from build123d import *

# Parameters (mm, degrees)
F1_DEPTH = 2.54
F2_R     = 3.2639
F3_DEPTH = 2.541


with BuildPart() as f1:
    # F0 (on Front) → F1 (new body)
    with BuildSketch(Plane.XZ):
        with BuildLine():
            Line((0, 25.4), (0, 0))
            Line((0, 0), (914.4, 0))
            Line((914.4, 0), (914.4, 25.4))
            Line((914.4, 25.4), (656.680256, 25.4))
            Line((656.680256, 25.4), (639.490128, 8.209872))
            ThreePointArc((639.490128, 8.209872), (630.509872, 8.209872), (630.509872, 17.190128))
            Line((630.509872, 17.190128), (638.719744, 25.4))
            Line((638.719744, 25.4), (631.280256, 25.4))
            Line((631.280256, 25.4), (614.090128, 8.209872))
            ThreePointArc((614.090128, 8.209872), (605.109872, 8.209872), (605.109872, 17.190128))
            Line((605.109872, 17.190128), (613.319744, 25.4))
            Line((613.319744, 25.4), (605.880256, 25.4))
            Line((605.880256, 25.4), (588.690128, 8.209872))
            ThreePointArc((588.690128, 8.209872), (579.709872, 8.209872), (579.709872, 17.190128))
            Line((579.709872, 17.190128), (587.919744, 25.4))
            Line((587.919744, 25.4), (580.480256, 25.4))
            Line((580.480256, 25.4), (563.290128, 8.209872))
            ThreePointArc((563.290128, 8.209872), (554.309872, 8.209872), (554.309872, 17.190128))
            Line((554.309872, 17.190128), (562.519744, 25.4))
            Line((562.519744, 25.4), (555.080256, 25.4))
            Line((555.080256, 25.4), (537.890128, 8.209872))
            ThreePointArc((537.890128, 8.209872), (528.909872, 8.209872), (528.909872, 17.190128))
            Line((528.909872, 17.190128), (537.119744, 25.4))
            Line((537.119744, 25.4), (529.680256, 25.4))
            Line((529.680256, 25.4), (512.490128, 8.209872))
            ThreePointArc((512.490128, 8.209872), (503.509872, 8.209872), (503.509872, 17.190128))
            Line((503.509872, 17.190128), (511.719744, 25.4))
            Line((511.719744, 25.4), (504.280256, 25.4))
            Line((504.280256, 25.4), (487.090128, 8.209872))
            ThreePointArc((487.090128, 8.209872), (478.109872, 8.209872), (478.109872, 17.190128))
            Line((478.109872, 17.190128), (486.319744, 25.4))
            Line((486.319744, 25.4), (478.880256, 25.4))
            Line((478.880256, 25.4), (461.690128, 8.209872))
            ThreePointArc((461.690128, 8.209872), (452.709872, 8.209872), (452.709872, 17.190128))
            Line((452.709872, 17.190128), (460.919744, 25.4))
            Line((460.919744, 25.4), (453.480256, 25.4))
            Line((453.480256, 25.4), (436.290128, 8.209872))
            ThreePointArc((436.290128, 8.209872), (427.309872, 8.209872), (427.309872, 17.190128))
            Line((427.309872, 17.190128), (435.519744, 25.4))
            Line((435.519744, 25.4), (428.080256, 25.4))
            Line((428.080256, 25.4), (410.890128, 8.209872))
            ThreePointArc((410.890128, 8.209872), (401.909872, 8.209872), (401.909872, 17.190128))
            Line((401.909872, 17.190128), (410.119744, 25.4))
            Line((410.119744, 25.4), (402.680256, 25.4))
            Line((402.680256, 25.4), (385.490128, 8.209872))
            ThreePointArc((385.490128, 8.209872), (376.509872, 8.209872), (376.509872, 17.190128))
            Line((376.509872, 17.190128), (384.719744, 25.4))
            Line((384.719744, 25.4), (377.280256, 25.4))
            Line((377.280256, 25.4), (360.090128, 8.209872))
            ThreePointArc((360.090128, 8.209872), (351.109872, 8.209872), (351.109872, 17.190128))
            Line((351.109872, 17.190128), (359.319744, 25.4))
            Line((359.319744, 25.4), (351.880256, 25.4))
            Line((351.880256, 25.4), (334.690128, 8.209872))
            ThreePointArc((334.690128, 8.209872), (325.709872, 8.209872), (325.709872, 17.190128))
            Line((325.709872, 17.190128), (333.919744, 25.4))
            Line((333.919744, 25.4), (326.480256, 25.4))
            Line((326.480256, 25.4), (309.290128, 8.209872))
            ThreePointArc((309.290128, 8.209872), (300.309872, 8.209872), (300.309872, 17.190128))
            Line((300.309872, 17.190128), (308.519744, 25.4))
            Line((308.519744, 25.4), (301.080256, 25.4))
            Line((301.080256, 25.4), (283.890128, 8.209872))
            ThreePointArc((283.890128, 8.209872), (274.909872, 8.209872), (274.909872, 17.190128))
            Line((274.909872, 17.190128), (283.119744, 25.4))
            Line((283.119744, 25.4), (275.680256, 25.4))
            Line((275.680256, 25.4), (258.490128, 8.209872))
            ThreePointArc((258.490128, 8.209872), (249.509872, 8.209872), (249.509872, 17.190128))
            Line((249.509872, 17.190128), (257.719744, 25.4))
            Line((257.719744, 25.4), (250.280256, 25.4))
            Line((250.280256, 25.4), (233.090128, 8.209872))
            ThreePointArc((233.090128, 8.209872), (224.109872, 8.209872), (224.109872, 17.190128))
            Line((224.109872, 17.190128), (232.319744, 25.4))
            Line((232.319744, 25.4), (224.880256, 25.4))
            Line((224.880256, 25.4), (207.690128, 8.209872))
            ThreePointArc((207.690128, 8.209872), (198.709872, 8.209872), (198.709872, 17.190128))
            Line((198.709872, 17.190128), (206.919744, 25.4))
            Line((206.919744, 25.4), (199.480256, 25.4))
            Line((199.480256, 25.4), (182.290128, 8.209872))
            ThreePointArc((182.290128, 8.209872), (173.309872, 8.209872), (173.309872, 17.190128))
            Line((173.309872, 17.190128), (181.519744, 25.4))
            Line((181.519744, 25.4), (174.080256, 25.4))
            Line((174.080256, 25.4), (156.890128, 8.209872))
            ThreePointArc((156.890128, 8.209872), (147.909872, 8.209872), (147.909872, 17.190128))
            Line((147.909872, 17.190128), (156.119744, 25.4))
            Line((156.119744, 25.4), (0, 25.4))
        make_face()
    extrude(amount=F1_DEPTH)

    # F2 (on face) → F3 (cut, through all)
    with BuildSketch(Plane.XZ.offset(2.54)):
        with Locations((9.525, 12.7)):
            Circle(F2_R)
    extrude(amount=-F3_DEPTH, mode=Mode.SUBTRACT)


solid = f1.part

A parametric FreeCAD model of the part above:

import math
import FreeCAD as App
import Part
import Sketcher
Q = App.Units.Quantity

doc = App.newDocument("Part")
body = doc.addObject("PartDesign::Body", "Body")

# Sketch on XZ plane
sketch1 = body.newObject("Sketcher::SketchObject", "Sketch")
sketch1.AttachmentSupport = (doc.getObject("XZ_Plane"), [""])
sketch1.MapMode = "FlatFace"
sketch1.addGeometry([
    Part.LineSegment(App.Vector(0, 25.4, 0), App.Vector(0, 0, 0)),  # 0
    Part.LineSegment(App.Vector(0, 0, 0), App.Vector(914.4, 0, 0)),  # 1
    Part.LineSegment(App.Vector(914.4, 0, 0), App.Vector(914.4, 25.4, 0)),  # 2
    Part.LineSegment(App.Vector(914.4, 25.4, 0), App.Vector(656.680256, 25.4, 0)),  # 3
    Part.LineSegment(App.Vector(656.680256, 25.4, 0), App.Vector(639.490128, 8.209872, 0)),  # 4
    Part.ArcOfCircle(Part.Circle(App.Vector(635, 12.7, 0), App.Vector(0, 0, 1), 6.35), math.radians(135), math.radians(315)),  # 5
    Part.LineSegment(App.Vector(630.509872, 17.190128, 0), App.Vector(638.719744, 25.4, 0)),  # 6
    Part.LineSegment(App.Vector(638.719744, 25.4, 0), App.Vector(631.280256, 25.4, 0)),  # 7
    Part.LineSegment(App.Vector(631.280256, 25.4, 0), App.Vector(614.090128, 8.209872, 0)),  # 8
    Part.ArcOfCircle(Part.Circle(App.Vector(609.6, 12.7, 0), App.Vector(0, 0, 1), 6.35), math.radians(135), math.radians(315)),  # 9
    Part.LineSegment(App.Vector(605.109872, 17.190128, 0), App.Vector(613.319744, 25.4, 0)),  # 10
    Part.LineSegment(App.Vector(613.319744, 25.4, 0), App.Vector(605.880256, 25.4, 0)),  # 11
    Part.LineSegment(App.Vector(605.880256, 25.4, 0), App.Vector(588.690128, 8.209872, 0)),  # 12
    Part.ArcOfCircle(Part.Circle(App.Vector(584.2, 12.7, 0), App.Vector(0, 0, 1), 6.35), math.radians(135), math.radians(315)),  # 13
    Part.LineSegment(App.Vector(579.709872, 17.190128, 0), App.Vector(587.919744, 25.4, 0)),  # 14
    Part.LineSegment(App.Vector(587.919744, 25.4, 0), App.Vector(580.480256, 25.4, 0)),  # 15
    Part.LineSegment(App.Vector(580.480256, 25.4, 0), App.Vector(563.290128, 8.209872, 0)),  # 16
    Part.ArcOfCircle(Part.Circle(App.Vector(558.8, 12.7, 0), App.Vector(0, 0, 1), 6.35), math.radians(135), math.radians(315)),  # 17
    Part.LineSegment(App.Vector(554.309872, 17.190128, 0), App.Vector(562.519744, 25.4, 0)),  # 18
    Part.LineSegment(App.Vector(562.519744, 25.4, 0), App.Vector(555.080256, 25.4, 0)),  # 19
    Part.LineSegment(App.Vector(555.080256, 25.4, 0), App.Vector(537.890128, 8.209872, 0)),  # 20
    Part.ArcOfCircle(Part.Circle(App.Vector(533.4, 12.7, 0), App.Vector(0, 0, 1), 6.35), math.radians(135), math.radians(315)),  # 21
    Part.LineSegment(App.Vector(528.909872, 17.190128, 0), App.Vector(537.119744, 25.4, 0)),  # 22
    Part.LineSegment(App.Vector(537.119744, 25.4, 0), App.Vector(529.680256, 25.4, 0)),  # 23
    Part.LineSegment(App.Vector(529.680256, 25.4, 0), App.Vector(512.490128, 8.209872, 0)),  # 24
    Part.ArcOfCircle(Part.Circle(App.Vector(508, 12.7, 0), App.Vector(0, 0, 1), 6.35), math.radians(135), math.radians(315)),  # 25
    Part.LineSegment(App.Vector(503.509872, 17.190128, 0), App.Vector(511.719744, 25.4, 0)),  # 26
    Part.LineSegment(App.Vector(511.719744, 25.4, 0), App.Vector(504.280256, 25.4, 0)),  # 27
    Part.LineSegment(App.Vector(504.280256, 25.4, 0), App.Vector(487.090128, 8.209872, 0)),  # 28
    Part.ArcOfCircle(Part.Circle(App.Vector(482.6, 12.7, 0), App.Vector(0, 0, 1), 6.35), math.radians(135), math.radians(315)),  # 29
    Part.LineSegment(App.Vector(478.109872, 17.190128, 0), App.Vector(486.319744, 25.4, 0)),  # 30
    Part.LineSegment(App.Vector(486.319744, 25.4, 0), App.Vector(478.880256, 25.4, 0)),  # 31
    Part.LineSegment(App.Vector(478.880256, 25.4, 0), App.Vector(461.690128, 8.209872, 0)),  # 32
    Part.ArcOfCircle(Part.Circle(App.Vector(457.2, 12.7, 0), App.Vector(0, 0, 1), 6.35), math.radians(135), math.radians(315)),  # 33
    Part.LineSegment(App.Vector(452.709872, 17.190128, 0), App.Vector(460.919744, 25.4, 0)),  # 34
    Part.LineSegment(App.Vector(460.919744, 25.4, 0), App.Vector(453.480256, 25.4, 0)),  # 35
    Part.LineSegment(App.Vector(453.480256, 25.4, 0), App.Vector(436.290128, 8.209872, 0)),  # 36
    Part.ArcOfCircle(Part.Circle(App.Vector(431.8, 12.7, 0), App.Vector(0, 0, 1), 6.35), math.radians(135), math.radians(315)),  # 37
    Part.LineSegment(App.Vector(427.309872, 17.190128, 0), App.Vector(435.519744, 25.4, 0)),  # 38
    Part.LineSegment(App.Vector(435.519744, 25.4, 0), App.Vector(428.080256, 25.4, 0)),  # 39
    Part.LineSegment(App.Vector(428.080256, 25.4, 0), App.Vector(410.890128, 8.209872, 0)),  # 40
    Part.ArcOfCircle(Part.Circle(App.Vector(406.4, 12.7, 0), App.Vector(0, 0, 1), 6.35), math.radians(135), math.radians(315)),  # 41
    Part.LineSegment(App.Vector(401.909872, 17.190128, 0), App.Vector(410.119744, 25.4, 0)),  # 42
    Part.LineSegment(App.Vector(410.119744, 25.4, 0), App.Vector(402.680256, 25.4, 0)),  # 43
    Part.LineSegment(App.Vector(402.680256, 25.4, 0), App.Vector(385.490128, 8.209872, 0)),  # 44
    Part.ArcOfCircle(Part.Circle(App.Vector(381, 12.7, 0), App.Vector(0, 0, 1), 6.35), math.radians(135), math.radians(315)),  # 45
    Part.LineSegment(App.Vector(376.509872, 17.190128, 0), App.Vector(384.719744, 25.4, 0)),  # 46
    Part.LineSegment(App.Vector(384.719744, 25.4, 0), App.Vector(377.280256, 25.4, 0)),  # 47
    Part.LineSegment(App.Vector(377.280256, 25.4, 0), App.Vector(360.090128, 8.209872, 0)),  # 48
    Part.ArcOfCircle(Part.Circle(App.Vector(355.6, 12.7, 0), App.Vector(0, 0, 1), 6.35), math.radians(135), math.radians(315)),  # 49
    Part.LineSegment(App.Vector(351.109872, 17.190128, 0), App.Vector(359.319744, 25.4, 0)),  # 50
    Part.LineSegment(App.Vector(359.319744, 25.4, 0), App.Vector(351.880256, 25.4, 0)),  # 51
    Part.LineSegment(App.Vector(351.880256, 25.4, 0), App.Vector(334.690128, 8.209872, 0)),  # 52
    Part.ArcOfCircle(Part.Circle(App.Vector(330.2, 12.7, 0), App.Vector(0, 0, 1), 6.35), math.radians(135), math.radians(315)),  # 53
    Part.LineSegment(App.Vector(325.709872, 17.190128, 0), App.Vector(333.919744, 25.4, 0)),  # 54
    Part.LineSegment(App.Vector(333.919744, 25.4, 0), App.Vector(326.480256, 25.4, 0)),  # 55
    Part.LineSegment(App.Vector(326.480256, 25.4, 0), App.Vector(309.290128, 8.209872, 0)),  # 56
    Part.ArcOfCircle(Part.Circle(App.Vector(304.8, 12.7, 0), App.Vector(0, 0, 1), 6.35), math.radians(135), math.radians(315)),  # 57
    Part.LineSegment(App.Vector(300.309872, 17.190128, 0), App.Vector(308.519744, 25.4, 0)),  # 58
    Part.LineSegment(App.Vector(308.519744, 25.4, 0), App.Vector(301.080256, 25.4, 0)),  # 59
    Part.LineSegment(App.Vector(301.080256, 25.4, 0), App.Vector(283.890128, 8.209872, 0)),  # 60
    Part.ArcOfCircle(Part.Circle(App.Vector(279.4, 12.7, 0), App.Vector(0, 0, 1), 6.35), math.radians(135), math.radians(315)),  # 61
    Part.LineSegment(App.Vector(274.909872, 17.190128, 0), App.Vector(283.119744, 25.4, 0)),  # 62
    Part.LineSegment(App.Vector(283.119744, 25.4, 0), App.Vector(275.680256, 25.4, 0)),  # 63
    Part.LineSegment(App.Vector(275.680256, 25.4, 0), App.Vector(258.490128, 8.209872, 0)),  # 64
    Part.ArcOfCircle(Part.Circle(App.Vector(254, 12.7, 0), App.Vector(0, 0, 1), 6.35), math.radians(135), math.radians(315)),  # 65
    Part.LineSegment(App.Vector(249.509872, 17.190128, 0), App.Vector(257.719744, 25.4, 0)),  # 66
    Part.LineSegment(App.Vector(257.719744, 25.4, 0), App.Vector(250.280256, 25.4, 0)),  # 67
    Part.LineSegment(App.Vector(250.280256, 25.4, 0), App.Vector(233.090128, 8.209872, 0)),  # 68
    Part.ArcOfCircle(Part.Circle(App.Vector(228.6, 12.7, 0), App.Vector(0, 0, 1), 6.35), math.radians(135), math.radians(315)),  # 69
    Part.LineSegment(App.Vector(224.109872, 17.190128, 0), App.Vector(232.319744, 25.4, 0)),  # 70
    Part.LineSegment(App.Vector(232.319744, 25.4, 0), App.Vector(224.880256, 25.4, 0)),  # 71
    Part.LineSegment(App.Vector(224.880256, 25.4, 0), App.Vector(207.690128, 8.209872, 0)),  # 72
    Part.ArcOfCircle(Part.Circle(App.Vector(203.2, 12.7, 0), App.Vector(0, 0, 1), 6.35), math.radians(135), math.radians(315)),  # 73
    Part.LineSegment(App.Vector(198.709872, 17.190128, 0), App.Vector(206.919744, 25.4, 0)),  # 74
    Part.LineSegment(App.Vector(206.919744, 25.4, 0), App.Vector(199.480256, 25.4, 0)),  # 75
    Part.LineSegment(App.Vector(199.480256, 25.4, 0), App.Vector(182.290128, 8.209872, 0)),  # 76
    Part.ArcOfCircle(Part.Circle(App.Vector(177.8, 12.7, 0), App.Vector(0, 0, 1), 6.35), math.radians(135), math.radians(315)),  # 77
    Part.LineSegment(App.Vector(173.309872, 17.190128, 0), App.Vector(181.519744, 25.4, 0)),  # 78
    Part.LineSegment(App.Vector(181.519744, 25.4, 0), App.Vector(174.080256, 25.4, 0)),  # 79
    Part.LineSegment(App.Vector(174.080256, 25.4, 0), App.Vector(156.890128, 8.209872, 0)),  # 80
    Part.ArcOfCircle(Part.Circle(App.Vector(152.4, 12.7, 0), App.Vector(0, 0, 1), 6.35), math.radians(135), math.radians(315)),  # 81
    Part.LineSegment(App.Vector(147.909872, 17.190128, 0), App.Vector(156.119744, 25.4, 0)),  # 82
    Part.LineSegment(App.Vector(156.119744, 25.4, 0), App.Vector(0, 25.4, 0)),  # 83
], False)
sketch1.addConstraint([
    Sketcher.Constraint("Coincident", 0, 2, 1, 1),
    Sketcher.Constraint("Coincident", 1, 2, 2, 1),
    Sketcher.Constraint("Coincident", 2, 2, 3, 1),
    Sketcher.Constraint("Coincident", 3, 2, 4, 1),
    Sketcher.Constraint("Tangent", 4, 2, 5, 2),
    Sketcher.Constraint("Tangent", 5, 1, 6, 1),
    Sketcher.Constraint("Coincident", 6, 2, 7, 1),
    Sketcher.Constraint("Coincident", 7, 2, 8, 1),
    Sketcher.Constraint("Tangent", 8, 2, 9, 2),
    Sketcher.Constraint("Tangent", 9, 1, 10, 1),
    Sketcher.Constraint("Coincident", 10, 2, 11, 1),
    Sketcher.Constraint("Coincident", 11, 2, 12, 1),
    Sketcher.Constraint("Tangent", 12, 2, 13, 2),
    Sketcher.Constraint("Tangent", 13, 1, 14, 1),
    Sketcher.Constraint("Coincident", 14, 2, 15, 1),
    Sketcher.Constraint("Coincident", 15, 2, 16, 1),
    Sketcher.Constraint("Tangent", 16, 2, 17, 2),
    Sketcher.Constraint("Tangent", 17, 1, 18, 1),
    Sketcher.Constraint("Coincident", 18, 2, 19, 1),
    Sketcher.Constraint("Coincident", 19, 2, 20, 1),
    Sketcher.Constraint("Tangent", 20, 2, 21, 2),
    Sketcher.Constraint("Tangent", 21, 1, 22, 1),
    Sketcher.Constraint("Coincident", 22, 2, 23, 1),
    Sketcher.Constraint("Coincident", 23, 2, 24, 1),
    Sketcher.Constraint("Tangent", 24, 2, 25, 2),
    Sketcher.Constraint("Tangent", 25, 1, 26, 1),
    Sketcher.Constraint("Coincident", 26, 2, 27, 1),
    Sketcher.Constraint("Coincident", 27, 2, 28, 1),
    Sketcher.Constraint("Tangent", 28, 2, 29, 2),
    Sketcher.Constraint("Tangent", 29, 1, 30, 1),
    Sketcher.Constraint("Coincident", 30, 2, 31, 1),
    Sketcher.Constraint("Coincident", 31, 2, 32, 1),
    Sketcher.Constraint("Tangent", 32, 2, 33, 2),
    Sketcher.Constraint("Tangent", 33, 1, 34, 1),
    Sketcher.Constraint("Coincident", 34, 2, 35, 1),
    Sketcher.Constraint("Coincident", 35, 2, 36, 1),
    Sketcher.Constraint("Tangent", 36, 2, 37, 2),
    Sketcher.Constraint("Tangent", 37, 1, 38, 1),
    Sketcher.Constraint("Coincident", 38, 2, 39, 1),
    Sketcher.Constraint("Coincident", 39, 2, 40, 1),
    Sketcher.Constraint("Tangent", 40, 2, 41, 2),
    Sketcher.Constraint("Tangent", 41, 1, 42, 1),
    Sketcher.Constraint("Coincident", 42, 2, 43, 1),
    Sketcher.Constraint("Coincident", 43, 2, 44, 1),
    Sketcher.Constraint("Tangent", 44, 2, 45, 2),
    Sketcher.Constraint("Tangent", 45, 1, 46, 1),
    Sketcher.Constraint("Coincident", 46, 2, 47, 1),
    Sketcher.Constraint("Coincident", 47, 2, 48, 1),
    Sketcher.Constraint("Tangent", 48, 2, 49, 2),
    Sketcher.Constraint("Tangent", 49, 1, 50, 1),
    Sketcher.Constraint("Coincident", 50, 2, 51, 1),
    Sketcher.Constraint("Coincident", 51, 2, 52, 1),
    Sketcher.Constraint("Tangent", 52, 2, 53, 2),
    Sketcher.Constraint("Tangent", 53, 1, 54, 1),
    Sketcher.Constraint("Coincident", 54, 2, 55, 1),
    Sketcher.Constraint("Coincident", 55, 2, 56, 1),
    Sketcher.Constraint("Tangent", 56, 2, 57, 2),
    Sketcher.Constraint("Tangent", 57, 1, 58, 1),
    Sketcher.Constraint("Coincident", 58, 2, 59, 1),
    Sketcher.Constraint("Coincident", 59, 2, 60, 1),
    Sketcher.Constraint("Tangent", 60, 2, 61, 2),
    Sketcher.Constraint("Tangent", 61, 1, 62, 1),
    Sketcher.Constraint("Coincident", 62, 2, 63, 1),
    Sketcher.Constraint("Coincident", 63, 2, 64, 1),
    Sketcher.Constraint("Tangent", 64, 2, 65, 2),
    Sketcher.Constraint("Tangent", 65, 1, 66, 1),
    Sketcher.Constraint("Coincident", 66, 2, 67, 1),
    Sketcher.Constraint("Coincident", 67, 2, 68, 1),
    Sketcher.Constraint("Tangent", 68, 2, 69, 2),
    Sketcher.Constraint("Tangent", 69, 1, 70, 1),
    Sketcher.Constraint("Coincident", 70, 2, 71, 1),
    Sketcher.Constraint("Coincident", 71, 2, 72, 1),
    Sketcher.Constraint("Tangent", 72, 2, 73, 2),
    Sketcher.Constraint("Tangent", 73, 1, 74, 1),
    Sketcher.Constraint("Coincident", 74, 2, 75, 1),
    Sketcher.Constraint("Coincident", 75, 2, 76, 1),
    Sketcher.Constraint("Tangent", 76, 2, 77, 2),
    Sketcher.Constraint("Tangent", 77, 1, 78, 1),
    Sketcher.Constraint("Coincident", 78, 2, 79, 1),
    Sketcher.Constraint("Coincident", 79, 2, 80, 1),
    Sketcher.Constraint("Tangent", 80, 2, 81, 2),
    Sketcher.Constraint("Tangent", 81, 1, 82, 1),
    Sketcher.Constraint("Coincident", 82, 2, 83, 1),
    Sketcher.Constraint("Coincident", 83, 2, 0, 1),
    Sketcher.Constraint("Vertical", 0),
    Sketcher.Constraint("Horizontal", 1),
    Sketcher.Constraint("Vertical", 2),
    Sketcher.Constraint("Horizontal", 3),
    Sketcher.Constraint("Horizontal", 7),
    Sketcher.Constraint("Horizontal", 11),
    Sketcher.Constraint("Horizontal", 15),
    Sketcher.Constraint("Horizontal", 19),
    Sketcher.Constraint("Horizontal", 23),
    Sketcher.Constraint("Horizontal", 27),
    Sketcher.Constraint("Horizontal", 31),
    Sketcher.Constraint("Horizontal", 35),
    Sketcher.Constraint("Horizontal", 39),
    Sketcher.Constraint("Horizontal", 43),
    Sketcher.Constraint("Horizontal", 47),
    Sketcher.Constraint("Horizontal", 51),
    Sketcher.Constraint("Horizontal", 55),
    Sketcher.Constraint("Horizontal", 59),
    Sketcher.Constraint("Horizontal", 63),
    Sketcher.Constraint("Horizontal", 67),
    Sketcher.Constraint("Horizontal", 71),
    Sketcher.Constraint("Horizontal", 75),
    Sketcher.Constraint("Horizontal", 79),
    Sketcher.Constraint("Horizontal", 83),
    Sketcher.Constraint("Coincident", 0, 2, -1, 1),
    Sketcher.Constraint("Equal", 5, 9),
    Sketcher.Constraint("Equal", 9, 13),
    Sketcher.Constraint("Equal", 13, 17),
    Sketcher.Constraint("Equal", 17, 21),
    Sketcher.Constraint("Equal", 21, 25),
    Sketcher.Constraint("Equal", 25, 29),
    Sketcher.Constraint("Equal", 29, 33),
    Sketcher.Constraint("Equal", 33, 37),
    Sketcher.Constraint("Equal", 37, 41),
    Sketcher.Constraint("Equal", 41, 45),
    Sketcher.Constraint("Equal", 45, 49),
    Sketcher.Constraint("Equal", 49, 53),
    Sketcher.Constraint("Equal", 53, 57),
    Sketcher.Constraint("Equal", 57, 61),
    Sketcher.Constraint("Equal", 61, 65),
    Sketcher.Constraint("Equal", 65, 69),
    Sketcher.Constraint("Equal", 69, 73),
    Sketcher.Constraint("Equal", 73, 77),
    Sketcher.Constraint("Equal", 77, 81),
    Sketcher.Constraint("Parallel", 4, 6),
    Sketcher.Constraint("Parallel", 6, 8),
    Sketcher.Constraint("Parallel", 8, 10),
    Sketcher.Constraint("Parallel", 10, 12),
    Sketcher.Constraint("Parallel", 12, 14),
    Sketcher.Constraint("Parallel", 14, 16),
    Sketcher.Constraint("Parallel", 16, 18),
    Sketcher.Constraint("Parallel", 18, 20),
    Sketcher.Constraint("Parallel", 20, 22),
    Sketcher.Constraint("Parallel", 22, 24),
    Sketcher.Constraint("Parallel", 24, 26),
    Sketcher.Constraint("Parallel", 26, 28),
    Sketcher.Constraint("Parallel", 28, 30),
    Sketcher.Constraint("Parallel", 30, 32),
    Sketcher.Constraint("Parallel", 32, 34),
    Sketcher.Constraint("Parallel", 34, 36),
    Sketcher.Constraint("Parallel", 36, 38),
    Sketcher.Constraint("Parallel", 38, 40),
    Sketcher.Constraint("Parallel", 40, 42),
    Sketcher.Constraint("Parallel", 42, 44),
    Sketcher.Constraint("Parallel", 44, 46),
    Sketcher.Constraint("Parallel", 46, 48),
    Sketcher.Constraint("Parallel", 48, 50),
    Sketcher.Constraint("Parallel", 50, 52),
    Sketcher.Constraint("Parallel", 52, 54),
    Sketcher.Constraint("Parallel", 54, 56),
    Sketcher.Constraint("Parallel", 56, 58),
    Sketcher.Constraint("Parallel", 58, 60),
    Sketcher.Constraint("Parallel", 60, 62),
    Sketcher.Constraint("Parallel", 62, 64),
    Sketcher.Constraint("Parallel", 64, 66),
    Sketcher.Constraint("Parallel", 66, 68),
    Sketcher.Constraint("Parallel", 68, 70),
    Sketcher.Constraint("Parallel", 70, 72),
    Sketcher.Constraint("Parallel", 72, 74),
    Sketcher.Constraint("Parallel", 74, 76),
    Sketcher.Constraint("Parallel", 76, 78),
    Sketcher.Constraint("Parallel", 78, 80),
    Sketcher.Constraint("Parallel", 80, 82),
    Sketcher.Constraint("Horizontal", 5, 3, 9, 3),
    Sketcher.Constraint("Horizontal", 9, 3, 13, 3),
    Sketcher.Constraint("Horizontal", 13, 3, 17, 3),
    Sketcher.Constraint("Horizontal", 17, 3, 21, 3),
    Sketcher.Constraint("Horizontal", 21, 3, 25, 3),
    Sketcher.Constraint("Horizontal", 25, 3, 29, 3),
    Sketcher.Constraint("Horizontal", 29, 3, 33, 3),
    Sketcher.Constraint("Horizontal", 33, 3, 37, 3),
    Sketcher.Constraint("Horizontal", 37, 3, 41, 3),
    Sketcher.Constraint("Horizontal", 41, 3, 45, 3),
    Sketcher.Constraint("Horizontal", 45, 3, 49, 3),
    Sketcher.Constraint("Horizontal", 49, 3, 53, 3),
    Sketcher.Constraint("Horizontal", 53, 3, 57, 3),
    Sketcher.Constraint("Horizontal", 57, 3, 61, 3),
    Sketcher.Constraint("Horizontal", 61, 3, 65, 3),
    Sketcher.Constraint("Horizontal", 65, 3, 69, 3),
    Sketcher.Constraint("Horizontal", 69, 3, 73, 3),
    Sketcher.Constraint("Horizontal", 73, 3, 77, 3),
    Sketcher.Constraint("Horizontal", 77, 3, 81, 3),
    Sketcher.Constraint("Horizontal", 3, 2, 6, 2),
    Sketcher.Constraint("Horizontal", 7, 2, 10, 2),
    Sketcher.Constraint("Horizontal", 11, 2, 14, 2),
    Sketcher.Constraint("Horizontal", 15, 2, 18, 2),
    Sketcher.Constraint("Horizontal", 19, 2, 22, 2),
    Sketcher.Constraint("Horizontal", 23, 2, 26, 2),
    Sketcher.Constraint("Horizontal", 27, 2, 30, 2),
    Sketcher.Constraint("Horizontal", 31, 2, 34, 2),
    Sketcher.Constraint("Horizontal", 35, 2, 38, 2),
    Sketcher.Constraint("Horizontal", 39, 2, 42, 2),
    Sketcher.Constraint("Horizontal", 43, 2, 46, 2),
    Sketcher.Constraint("Horizontal", 47, 2, 50, 2),
    Sketcher.Constraint("Horizontal", 51, 2, 54, 2),
    Sketcher.Constraint("Horizontal", 55, 2, 58, 2),
    Sketcher.Constraint("Horizontal", 59, 2, 62, 2),
    Sketcher.Constraint("Horizontal", 63, 2, 66, 2),
    Sketcher.Constraint("Horizontal", 67, 2, 70, 2),
    Sketcher.Constraint("Horizontal", 71, 2, 74, 2),
    Sketcher.Constraint("Horizontal", 75, 2, 78, 2),
    Sketcher.Constraint("Horizontal", 79, 2, 82, 2),
    Sketcher.Constraint("Equal", 7, 11),
    Sketcher.Constraint("Equal", 11, 15),
    Sketcher.Constraint("Equal", 15, 19),
    Sketcher.Constraint("Equal", 19, 23),
    Sketcher.Constraint("Equal", 23, 27),
    Sketcher.Constraint("Equal", 27, 31),
    Sketcher.Constraint("Equal", 31, 35),
    Sketcher.Constraint("Equal", 35, 39),
    Sketcher.Constraint("Equal", 39, 43),
    Sketcher.Constraint("Equal", 43, 47),
    Sketcher.Constraint("Equal", 47, 51),
    Sketcher.Constraint("Equal", 51, 55),
    Sketcher.Constraint("Equal", 55, 59),
    Sketcher.Constraint("Equal", 59, 63),
    Sketcher.Constraint("Equal", 63, 67),
    Sketcher.Constraint("Equal", 67, 71),
    Sketcher.Constraint("Equal", 71, 75),
    Sketcher.Constraint("Equal", 75, 79),
    Sketcher.Constraint("DistanceX", 1, 1, 1, 2, Q("36 in")),
    Sketcher.Constraint("DistanceY", 0, 2, 0, 1, Q("1 in")),
    Sketcher.Constraint("Radius", 5, Q("0.25 in")),
    Sketcher.Constraint("DistanceX", -1, 1, 5, 3, Q("25 in")),
    Sketcher.Constraint("DistanceX", -1, 1, 9, 3, Q("24 in")),
    Sketcher.Constraint("Angle", 4, Q("-135 deg")),
    Sketcher.Constraint("DistanceY", -1, 1, 5, 3, Q("0.5 in")),
])
pad1 = body.newObject("PartDesign::Pad", "Pad")
pad1.Profile = sketch1
pad1.Length = Q("0.1 in")

# Sketch on XZ plane
sketch2 = body.newObject("Sketcher::SketchObject", "Sketch001")
sketch2.AttachmentSupport = (doc.getObject("XZ_Plane"), [""])
sketch2.MapMode = "FlatFace"
sketch2.AttachmentOffset = App.Placement(App.Vector(0, 0, 0.1 * 25.4), App.Rotation())
sketch2.addGeometry(Part.Circle(App.Vector(9.525, 12.7, 0), App.Vector(0, 0, 1), 3.2639), False)
sketch2.addConstraint([
    Sketcher.Constraint("Diameter", 0, Q("0.257 in")),
    Sketcher.Constraint("DistanceY", -1, 1, 0, 3, Q("0.5 in")),
    Sketcher.Constraint("DistanceX", -1, 1, 0, 3, Q("0.375 in")),
])
pocket1 = body.newObject("PartDesign::Pocket", "Pocket")
pocket1.Profile = sketch2
pocket1.Type = "ThroughAll"

doc.recompute()
